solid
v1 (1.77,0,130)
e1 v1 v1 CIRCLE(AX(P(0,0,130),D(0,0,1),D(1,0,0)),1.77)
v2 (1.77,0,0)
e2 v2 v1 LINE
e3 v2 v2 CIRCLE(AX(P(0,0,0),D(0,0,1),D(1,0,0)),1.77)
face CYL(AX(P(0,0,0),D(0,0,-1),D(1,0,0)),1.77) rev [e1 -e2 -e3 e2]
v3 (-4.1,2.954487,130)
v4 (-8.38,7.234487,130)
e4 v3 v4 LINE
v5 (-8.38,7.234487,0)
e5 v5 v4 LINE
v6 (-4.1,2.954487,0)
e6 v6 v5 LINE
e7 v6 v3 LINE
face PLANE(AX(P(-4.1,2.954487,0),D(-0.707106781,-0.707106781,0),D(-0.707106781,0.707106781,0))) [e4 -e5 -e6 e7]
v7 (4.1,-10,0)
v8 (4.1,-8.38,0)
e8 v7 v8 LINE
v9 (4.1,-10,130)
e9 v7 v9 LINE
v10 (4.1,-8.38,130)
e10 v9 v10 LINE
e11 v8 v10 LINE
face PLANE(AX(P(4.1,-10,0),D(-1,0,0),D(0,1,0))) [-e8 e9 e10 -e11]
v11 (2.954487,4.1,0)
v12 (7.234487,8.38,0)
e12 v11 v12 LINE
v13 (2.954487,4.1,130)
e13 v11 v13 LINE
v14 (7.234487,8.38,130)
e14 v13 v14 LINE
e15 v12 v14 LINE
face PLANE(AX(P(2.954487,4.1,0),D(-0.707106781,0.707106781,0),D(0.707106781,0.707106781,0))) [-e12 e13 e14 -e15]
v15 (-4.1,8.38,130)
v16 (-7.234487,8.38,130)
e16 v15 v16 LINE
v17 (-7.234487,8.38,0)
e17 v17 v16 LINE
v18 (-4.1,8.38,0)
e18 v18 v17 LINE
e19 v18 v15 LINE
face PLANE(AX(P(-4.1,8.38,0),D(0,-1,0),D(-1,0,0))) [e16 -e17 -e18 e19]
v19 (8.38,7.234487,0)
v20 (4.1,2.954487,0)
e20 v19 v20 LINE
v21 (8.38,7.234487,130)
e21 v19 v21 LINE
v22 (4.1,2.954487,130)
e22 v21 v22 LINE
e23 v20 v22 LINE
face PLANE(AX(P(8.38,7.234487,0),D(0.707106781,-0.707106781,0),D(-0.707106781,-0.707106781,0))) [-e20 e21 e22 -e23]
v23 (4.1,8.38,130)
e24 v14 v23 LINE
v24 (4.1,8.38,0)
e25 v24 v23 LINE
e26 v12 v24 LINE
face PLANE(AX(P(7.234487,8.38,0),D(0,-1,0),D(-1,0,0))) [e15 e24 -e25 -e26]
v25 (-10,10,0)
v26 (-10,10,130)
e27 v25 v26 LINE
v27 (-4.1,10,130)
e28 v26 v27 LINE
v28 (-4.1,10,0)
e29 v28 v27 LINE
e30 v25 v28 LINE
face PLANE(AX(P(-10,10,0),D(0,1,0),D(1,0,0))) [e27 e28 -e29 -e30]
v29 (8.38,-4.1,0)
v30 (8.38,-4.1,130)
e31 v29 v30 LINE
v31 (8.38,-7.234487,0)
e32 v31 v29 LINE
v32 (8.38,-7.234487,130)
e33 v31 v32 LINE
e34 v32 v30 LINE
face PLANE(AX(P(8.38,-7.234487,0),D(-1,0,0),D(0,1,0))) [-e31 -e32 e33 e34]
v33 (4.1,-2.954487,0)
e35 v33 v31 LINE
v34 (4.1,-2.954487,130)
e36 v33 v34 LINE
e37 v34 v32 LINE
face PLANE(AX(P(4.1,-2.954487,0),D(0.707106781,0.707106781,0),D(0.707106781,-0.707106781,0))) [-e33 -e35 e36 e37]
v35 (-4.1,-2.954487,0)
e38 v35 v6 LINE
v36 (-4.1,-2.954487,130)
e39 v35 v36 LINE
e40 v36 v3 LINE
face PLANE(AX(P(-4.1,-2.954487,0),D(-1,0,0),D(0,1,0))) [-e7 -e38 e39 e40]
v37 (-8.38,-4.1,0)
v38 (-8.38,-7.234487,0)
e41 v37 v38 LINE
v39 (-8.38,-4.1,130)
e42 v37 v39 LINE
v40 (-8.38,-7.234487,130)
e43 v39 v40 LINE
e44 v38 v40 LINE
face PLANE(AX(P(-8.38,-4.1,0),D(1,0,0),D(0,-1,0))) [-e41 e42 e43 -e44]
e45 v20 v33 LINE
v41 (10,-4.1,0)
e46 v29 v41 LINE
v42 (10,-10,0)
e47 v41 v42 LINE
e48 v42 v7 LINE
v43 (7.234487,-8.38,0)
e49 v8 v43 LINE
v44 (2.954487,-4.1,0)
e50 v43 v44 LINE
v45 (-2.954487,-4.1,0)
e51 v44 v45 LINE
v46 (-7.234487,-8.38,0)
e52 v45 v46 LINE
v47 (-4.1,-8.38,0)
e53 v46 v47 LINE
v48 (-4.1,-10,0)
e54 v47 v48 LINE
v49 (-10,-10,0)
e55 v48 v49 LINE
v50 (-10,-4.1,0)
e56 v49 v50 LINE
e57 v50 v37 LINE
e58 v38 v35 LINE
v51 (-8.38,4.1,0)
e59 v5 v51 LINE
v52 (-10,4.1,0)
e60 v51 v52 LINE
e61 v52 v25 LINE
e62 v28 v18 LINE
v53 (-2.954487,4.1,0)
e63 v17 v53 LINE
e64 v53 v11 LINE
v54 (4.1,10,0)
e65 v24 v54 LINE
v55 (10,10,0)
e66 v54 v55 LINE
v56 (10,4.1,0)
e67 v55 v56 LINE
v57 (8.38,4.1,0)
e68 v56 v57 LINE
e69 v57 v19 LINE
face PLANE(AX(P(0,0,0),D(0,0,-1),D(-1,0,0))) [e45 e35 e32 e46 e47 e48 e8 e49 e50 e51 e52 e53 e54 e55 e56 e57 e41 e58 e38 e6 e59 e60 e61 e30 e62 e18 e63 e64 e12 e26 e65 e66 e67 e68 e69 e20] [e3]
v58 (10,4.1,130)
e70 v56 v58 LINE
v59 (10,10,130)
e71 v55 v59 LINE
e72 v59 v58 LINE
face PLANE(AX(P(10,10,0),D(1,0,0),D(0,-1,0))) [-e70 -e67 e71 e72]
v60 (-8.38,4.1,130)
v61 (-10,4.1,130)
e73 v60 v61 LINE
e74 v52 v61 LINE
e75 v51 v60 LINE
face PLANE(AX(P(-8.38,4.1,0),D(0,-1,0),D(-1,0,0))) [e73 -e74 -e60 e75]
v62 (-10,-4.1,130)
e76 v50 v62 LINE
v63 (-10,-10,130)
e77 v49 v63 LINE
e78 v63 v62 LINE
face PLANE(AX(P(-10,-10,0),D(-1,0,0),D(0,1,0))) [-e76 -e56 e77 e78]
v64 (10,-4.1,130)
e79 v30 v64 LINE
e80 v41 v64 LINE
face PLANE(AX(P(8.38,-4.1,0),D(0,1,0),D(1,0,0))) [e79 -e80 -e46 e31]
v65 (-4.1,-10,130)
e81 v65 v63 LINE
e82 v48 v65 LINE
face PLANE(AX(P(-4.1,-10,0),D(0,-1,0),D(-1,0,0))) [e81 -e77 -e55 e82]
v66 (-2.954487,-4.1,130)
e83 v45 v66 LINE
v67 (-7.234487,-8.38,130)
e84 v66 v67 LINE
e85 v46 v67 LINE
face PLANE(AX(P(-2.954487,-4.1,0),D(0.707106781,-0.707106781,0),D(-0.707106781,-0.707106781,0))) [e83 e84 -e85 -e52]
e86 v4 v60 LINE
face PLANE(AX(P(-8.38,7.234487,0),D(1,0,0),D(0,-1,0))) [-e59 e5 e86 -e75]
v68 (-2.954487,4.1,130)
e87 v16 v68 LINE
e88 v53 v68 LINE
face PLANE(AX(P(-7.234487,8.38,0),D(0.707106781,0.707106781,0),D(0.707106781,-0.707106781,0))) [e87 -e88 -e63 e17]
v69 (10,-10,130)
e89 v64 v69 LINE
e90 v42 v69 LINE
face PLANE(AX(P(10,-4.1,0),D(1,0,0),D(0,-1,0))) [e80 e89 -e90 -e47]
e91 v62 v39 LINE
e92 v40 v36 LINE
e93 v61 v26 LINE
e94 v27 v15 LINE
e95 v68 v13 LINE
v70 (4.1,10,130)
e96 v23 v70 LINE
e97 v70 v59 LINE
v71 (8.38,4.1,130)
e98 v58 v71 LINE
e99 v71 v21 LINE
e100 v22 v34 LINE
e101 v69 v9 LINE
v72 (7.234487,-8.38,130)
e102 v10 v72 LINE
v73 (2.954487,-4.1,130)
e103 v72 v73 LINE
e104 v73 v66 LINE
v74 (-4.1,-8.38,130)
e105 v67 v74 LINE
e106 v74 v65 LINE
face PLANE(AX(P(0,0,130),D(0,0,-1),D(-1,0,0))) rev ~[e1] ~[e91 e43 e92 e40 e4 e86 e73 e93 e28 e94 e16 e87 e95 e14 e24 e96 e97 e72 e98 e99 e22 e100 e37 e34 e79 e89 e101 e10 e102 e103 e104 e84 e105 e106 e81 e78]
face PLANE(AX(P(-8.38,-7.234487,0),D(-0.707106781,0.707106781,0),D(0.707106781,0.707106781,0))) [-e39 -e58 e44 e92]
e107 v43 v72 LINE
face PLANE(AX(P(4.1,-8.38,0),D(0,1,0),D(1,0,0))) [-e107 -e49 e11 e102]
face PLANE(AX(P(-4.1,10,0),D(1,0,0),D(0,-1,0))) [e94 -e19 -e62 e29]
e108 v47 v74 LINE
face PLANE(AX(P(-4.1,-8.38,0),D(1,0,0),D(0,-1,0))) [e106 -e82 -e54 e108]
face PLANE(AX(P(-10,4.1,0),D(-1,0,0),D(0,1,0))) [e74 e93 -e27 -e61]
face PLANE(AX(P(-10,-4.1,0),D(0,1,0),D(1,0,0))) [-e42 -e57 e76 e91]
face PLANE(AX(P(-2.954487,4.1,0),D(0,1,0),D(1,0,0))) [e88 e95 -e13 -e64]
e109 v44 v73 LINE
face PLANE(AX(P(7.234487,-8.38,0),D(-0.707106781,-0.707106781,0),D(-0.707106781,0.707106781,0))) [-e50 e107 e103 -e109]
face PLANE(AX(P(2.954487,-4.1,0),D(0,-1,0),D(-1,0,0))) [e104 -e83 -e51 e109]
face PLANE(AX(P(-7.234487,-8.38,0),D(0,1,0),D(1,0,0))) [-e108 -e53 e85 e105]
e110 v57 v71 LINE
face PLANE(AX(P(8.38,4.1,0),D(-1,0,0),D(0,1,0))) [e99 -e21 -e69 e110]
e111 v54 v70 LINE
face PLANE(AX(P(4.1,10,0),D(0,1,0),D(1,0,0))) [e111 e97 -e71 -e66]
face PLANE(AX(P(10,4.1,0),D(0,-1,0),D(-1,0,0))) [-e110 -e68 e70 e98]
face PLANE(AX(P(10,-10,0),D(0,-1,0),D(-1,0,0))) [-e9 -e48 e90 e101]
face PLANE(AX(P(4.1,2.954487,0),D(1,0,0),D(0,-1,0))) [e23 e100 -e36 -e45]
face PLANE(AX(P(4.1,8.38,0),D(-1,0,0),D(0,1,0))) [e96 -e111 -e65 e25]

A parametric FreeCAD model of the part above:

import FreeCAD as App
import Part
import Sketcher
from FreeCAD import Vector
Q = App.Units.Quantity

doc = App.newDocument("Part")
body = doc.addObject("PartDesign::Body", "Body")

# Sketch on XY plane
sketch1 = body.newObject("Sketcher::SketchObject", "Sketch")
sketch1.AttachmentSupport = (doc.getObject("XY_Plane"), [""])
sketch1.MapMode = "FlatFace"
sketch1.addGeometry(Part.LineSegment(Vector(-10, 4.1, 0), Vector(-8.4, 4.1, 0)), False)
sketch1.addGeometry(Part.LineSegment(Vector(-8.4, 4.1, 0), Vector(-8.4, 7.2, 0)), False)
sketch1.addGeometry(Part.LineSegment(Vector(-8.4, 7.2, 0), Vector(-4.1, 3, 0)), False)
sketch1.addGeometry(Part.LineSegment(Vector(-4.1, 3, 0), Vector(-4.1, -3, 0)), False)
sketch1.addGeometry(Part.LineSegment(Vector(-4.1, -3, 0), Vector(-8.4, -7.2, 0)), False)
sketch1.addGeometry(Part.LineSegment(Vector(-8.4, -7.2, 0), Vector(-8.4, -4.1, 0)), False)
sketch1.addGeometry(Part.LineSegment(Vector(-8.4, -4.1, 0), Vector(-10, -4.1, 0)), False)
sketch1.addGeometry(Part.LineSegment(Vector(-10, -4.1, 0), Vector(-10, -10, 0)), False)
sketch1.addGeometry(Part.LineSegment(Vector(-10, -10, 0), Vector(-4.1, -10, 0)), False)
sketch1.addGeometry(Part.LineSegment(Vector(-4.1, -10, 0), Vector(-4.1, -8.4, 0)), False)
sketch1.addGeometry(Part.LineSegment(Vector(-4.1, -8.4, 0), Vector(-7.2, -8.4, 0)), False)
sketch1.addGeometry(Part.LineSegment(Vector(-7.2, -8.4, 0), Vector(-3, -4.1, 0)), False)
sketch1.addGeometry(Part.LineSegment(Vector(-3, -4.1, 0), Vector(3, -4.1, 0)), False)
sketch1.addGeometry(Part.LineSegment(Vector(3, -4.1, 0), Vector(7.2, -8.4, 0)), False)
sketch1.addGeometry(Part.LineSegment(Vector(7.2, -8.4, 0), Vector(4.1, -8.4, 0)), False)
sketch1.addGeometry(Part.LineSegment(Vector(4.1, -8.4, 0), Vector(4.1, -10, 0)), False)
sketch1.addGeometry(Part.LineSegment(Vector(4.1, -10, 0), Vector(10, -10, 0)), False)
sketch1.addGeometry(Part.LineSegment(Vector(10, -10, 0), Vector(10, -4.1, 0)), False)
sketch1.addGeometry(Part.LineSegment(Vector(10, -4.1, 0), Vector(8.4, -4.1, 0)), False)
sketch1.addGeometry(Part.LineSegment(Vector(8.4, -4.1, 0), Vector(8.4, -7.2, 0)), False)
sketch1.addGeometry(Part.LineSegment(Vector(8.4, -7.2, 0), Vector(4.1, -3, 0)), False)
sketch1.addGeometry(Part.LineSegment(Vector(4.1, -3, 0), Vector(4.1, 3, 0)), False)
sketch1.addGeometry(Part.LineSegment(Vector(4.1, 3, 0), Vector(8.4, 7.2, 0)), False)
sketch1.addGeometry(Part.LineSegment(Vector(8.4, 7.2, 0), Vector(8.4, 4.1, 0)), False)
sketch1.addGeometry(Part.LineSegment(Vector(8.4, 4.1, 0), Vector(10, 4.1, 0)), False)
sketch1.addGeometry(Part.LineSegment(Vector(10, 4.1, 0), Vector(10, 10, 0)), False)
sketch1.addGeometry(Part.LineSegment(Vector(10, 10, 0), Vector(4.1, 10, 0)), False)
sketch1.addGeometry(Part.LineSegment(Vector(4.1, 10, 0), Vector(4.1, 8.4, 0)), False)
sketch1.addGeometry(Part.LineSegment(Vector(4.1, 8.4, 0), Vector(7.2, 8.4, 0)), False)
sketch1.addGeometry(Part.LineSegment(Vector(7.2, 8.4, 0), Vector(3, 4.1, 0)), False)
sketch1.addGeometry(Part.LineSegment(Vector(3, 4.1, 0), Vector(-3, 4.1, 0)), False)
sketch1.addGeometry(Part.LineSegment(Vector(-3, 4.1, 0), Vector(-7.2, 8.4, 0)), False)
sketch1.addGeometry(Part.LineSegment(Vector(-7.2, 8.4, 0), Vector(-4.1, 8.4, 0)), False)
sketch1.addGeometry(Part.LineSegment(Vector(-4.1, 8.4, 0), Vector(-4.1, 10, 0)), False)
sketch1.addGeometry(Part.LineSegment(Vector(-4.1, 10, 0), Vector(-10, 10, 0)), False)
sketch1.addGeometry(Part.LineSegment(Vector(-10, 10, 0), Vector(-10, 4.1, 0)), False)
sketch1.addGeometry(Part.Circle(Vector(0, 0, 0), Vector(0, 0, 1), 1.8), False)
sketch1.addConstraint(Sketcher.Constraint("Coincident", 0, 2, 1, 1))
sketch1.addConstraint(Sketcher.Constraint("Coincident", 1, 2, 2, 1))
sketch1.addConstraint(Sketcher.Constraint("Coincident", 2, 2, 3, 1))
sketch1.addConstraint(Sketcher.Constraint("Coincident", 3, 2, 4, 1))
sketch1.addConstraint(Sketcher.Constraint("Coincident", 4, 2, 5, 1))
sketch1.addConstraint(Sketcher.Constraint("Coincident", 5, 2, 6, 1))
sketch1.addConstraint(Sketcher.Constraint("Coincident", 6, 2, 7, 1))
sketch1.addConstraint(Sketcher.Constraint("Coincident", 7, 2, 8, 1))
sketch1.addConstraint(Sketcher.Constraint("Coincident", 8, 2, 9, 1))
sketch1.addConstraint(Sketcher.Constraint("Coincident", 9, 2, 10, 1))
sketch1.addConstraint(Sketcher.Constraint("Coincident", 10, 2, 11, 1))
sketch1.addConstraint(Sketcher.Constraint("Coincident", 11, 2, 12, 1))
sketch1.addConstraint(Sketcher.Constraint("Coincident", 12, 2, 13, 1))
sketch1.addConstraint(Sketcher.Constraint("Coincident", 13, 2, 14, 1))
sketch1.addConstraint(Sketcher.Constraint("Coincident", 14, 2, 15, 1))
sketch1.addConstraint(Sketcher.Constraint("Coincident", 15, 2, 16, 1))
sketch1.addConstraint(Sketcher.Constraint("Coincident", 16, 2, 17, 1))
sketch1.addConstraint(Sketcher.Constraint("Coincident", 17, 2, 18, 1))
sketch1.addConstraint(Sketcher.Constraint("Coincident", 18, 2, 19, 1))
sketch1.addConstraint(Sketcher.Constraint("Coincident", 19, 2, 20, 1))
sketch1.addConstraint(Sketcher.Constraint("Coincident", 20, 2, 21, 1))
sketch1.addConstraint(Sketcher.Constraint("Coincident", 21, 2, 22, 1))
sketch1.addConstraint(Sketcher.Constraint("Coincident", 22, 2, 23, 1))
sketch1.addConstraint(Sketcher.Constraint("Coincident", 23, 2, 24, 1))
sketch1.addConstraint(Sketcher.Constraint("Coincident", 24, 2, 25, 1))
sketch1.addConstraint(Sketcher.Constraint("Coincident", 25, 2, 26, 1))
sketch1.addConstraint(Sketcher.Constraint("Coincident", 26, 2, 27, 1))
sketch1.addConstraint(Sketcher.Constraint("Coincident", 27, 2, 28, 1))
sketch1.addConstraint(Sketcher.Constraint("Coincident", 28, 2, 29, 1))
sketch1.addConstraint(Sketcher.Constraint("Coincident", 29, 2, 30, 1))
sketch1.addConstraint(Sketcher.Constraint("Coincident", 30, 2, 31, 1))
sketch1.addConstraint(Sketcher.Constraint("Coincident", 31, 2, 32, 1))
sketch1.addConstraint(Sketcher.Constraint("Coincident", 32, 2, 33, 1))
sketch1.addConstraint(Sketcher.Constraint("Coincident", 33, 2, 34, 1))
sketch1.addConstraint(Sketcher.Constraint("Coincident", 34, 2, 35, 1))
sketch1.addConstraint(Sketcher.Constraint("Coincident", 35, 2, 0, 1))
sketch1.addConstraint(Sketcher.Constraint("Horizontal", 0))
sketch1.addConstraint(Sketcher.Constraint("Vertical", 1))
sketch1.addConstraint(Sketcher.Constraint("Vertical", 3))
sketch1.addConstraint(Sketcher.Constraint("Vertical", 5))
sketch1.addConstraint(Sketcher.Constraint("Horizontal", 6))
sketch1.addConstraint(Sketcher.Constraint("Vertical", 7))
sketch1.addConstraint(Sketcher.Constraint("Horizontal", 8))
sketch1.addConstraint(Sketcher.Constraint("Vertical", 9))
sketch1.addConstraint(Sketcher.Constraint("Horizontal", 10))
sketch1.addConstraint(Sketcher.Constraint("Horizontal", 12))
sketch1.addConstraint(Sketcher.Constraint("Horizontal", 14))
sketch1.addConstraint(Sketcher.Constraint("Vertical", 15))
sketch1.addConstraint(Sketcher.Constraint("Horizontal", 16))
sketch1.addConstraint(Sketcher.Constraint("Vertical", 17))
sketch1.addConstraint(Sketcher.Constraint("Horizontal", 18))
sketch1.addConstraint(Sketcher.Constraint("Vertical", 19))
sketch1.addConstraint(Sketcher.Constraint("Vertical", 21))
sketch1.addConstraint(Sketcher.Constraint("Vertical", 23))
sketch1.addConstraint(Sketcher.Constraint("Horizontal", 24))
sketch1.addConstraint(Sketcher.Constraint("Vertical", 25))
sketch1.addConstraint(Sketcher.Constraint("Horizontal", 26))
sketch1.addConstraint(Sketcher.Constraint("Vertical", 27))
sketch1.addConstraint(Sketcher.Constraint("Horizontal", 28))
sketch1.addConstraint(Sketcher.Constraint("Horizontal", 30))
sketch1.addConstraint(Sketcher.Constraint("Horizontal", 32))
sketch1.addConstraint(Sketcher.Constraint("Vertical", 33))
sketch1.addConstraint(Sketcher.Constraint("Horizontal", 34))
sketch1.addConstraint(Sketcher.Constraint("Vertical", 35))
sketch1.addConstraint(Sketcher.Constraint("Coincident", 36, 3, -1, 1))
sketch1.addConstraint(Sketcher.Constraint("Symmetric", 0, 2, 18, 2, -1, 1))
sketch1.addConstraint(Sketcher.Constraint("Symmetric", 2, 2, 20, 2, -1, 1))
sketch1.addConstraint(Sketcher.Constraint("Symmetric", 4, 2, 22, 2, -1, 1))
sketch1.addConstraint(Sketcher.Constraint("Symmetric", 6, 2, 24, 2, -1, 1))
sketch1.addConstraint(Sketcher.Constraint("Symmetric", 8, 2, 26, 2, -1, 1))
sketch1.addConstraint(Sketcher.Constraint("Symmetric", 10, 2, 28, 2, -1, 1))
sketch1.addConstraint(Sketcher.Constraint("Symmetric", 11, 2, 29, 2, -1, 1))
sketch1.addConstraint(Sketcher.Constraint("Symmetric", 13, 2, 31, 2, -1, 1))
sketch1.addConstraint(Sketcher.Constraint("Symmetric", 15, 2, 33, 2, -1, 1))
sketch1.addConstraint(Sketcher.Constraint("Symmetric", 10, 2, 13, 2, -2))
sketch1.addConstraint(Sketcher.Constraint("Symmetric", 8, 2, 15, 2, -2))
sketch1.addConstraint(Sketcher.Constraint("Symmetric", 6, 2, 17, 2, -2))
sketch1.addConstraint(Sketcher.Constraint("Symmetric", 4, 2, 19, 2, -2))
sketch1.addConstraint(Sketcher.Constraint("Perpendicular", 2, 4))
sketch1.addConstraint(Sketcher.Constraint("Parallel", 4, 11))
sketch1.addConstraint(Sketcher.Constraint("Perpendicular", 11, 13))
sketch1.addConstraint(Sketcher.Constraint("Parallel", 13, 20))
sketch1.addConstraint(Sketcher.Constraint("Perpendicular", 20, 22))
sketch1.addConstraint(Sketcher.Constraint("Perpendicular", 29, 31))
sketch1.addConstraint(Sketcher.Constraint("Horizontal", 6, 2, 11, 2))
sketch1.addConstraint(Sketcher.Constraint("Horizontal", 3, 2, 20, 2))
sketch1.addConstraint(Sketcher.Constraint("Vertical", 3, 2, 8, 2))
sketch1.addConstraint(Sketcher.Constraint("Vertical", 7, 2, 34, 2))
sketch1.addConstraint(Sketcher.Constraint("Equal", 32, 1))
sketch1.addConstraint(Sketcher.Constraint("Equal", 30, 3))
sketch1.addConstraint(Sketcher.Constraint("Equal", 34, 7))
sketch1.addConstraint(Sketcher.Constraint("Equal", 24, 9))
sketch1.addConstraint(Sketcher.Constraint("Diameter", 36, Q("3.54 mm")))
sketch1.addConstraint(Sketcher.Constraint("DistanceX", 8, 1, 8, 2, Q("5.9 mm")))
sketch1.addConstraint(Sketcher.Constraint("DistanceX", 6, 2, -1, 1, Q("10 mm")))
sketch1.addConstraint(Sketcher.Constraint("DistanceX", 0, 1, 0, 2, Q("1.62 mm")))
sketch1.addConstraint(Sketcher.Constraint("DistanceX", 10, 2, 10, 1, Q("3.134487 mm")))
pad1 = body.newObject("PartDesign::Pad", "Pad")
pad1.Profile = sketch1
pad1.Length = 130

doc.recompute()
